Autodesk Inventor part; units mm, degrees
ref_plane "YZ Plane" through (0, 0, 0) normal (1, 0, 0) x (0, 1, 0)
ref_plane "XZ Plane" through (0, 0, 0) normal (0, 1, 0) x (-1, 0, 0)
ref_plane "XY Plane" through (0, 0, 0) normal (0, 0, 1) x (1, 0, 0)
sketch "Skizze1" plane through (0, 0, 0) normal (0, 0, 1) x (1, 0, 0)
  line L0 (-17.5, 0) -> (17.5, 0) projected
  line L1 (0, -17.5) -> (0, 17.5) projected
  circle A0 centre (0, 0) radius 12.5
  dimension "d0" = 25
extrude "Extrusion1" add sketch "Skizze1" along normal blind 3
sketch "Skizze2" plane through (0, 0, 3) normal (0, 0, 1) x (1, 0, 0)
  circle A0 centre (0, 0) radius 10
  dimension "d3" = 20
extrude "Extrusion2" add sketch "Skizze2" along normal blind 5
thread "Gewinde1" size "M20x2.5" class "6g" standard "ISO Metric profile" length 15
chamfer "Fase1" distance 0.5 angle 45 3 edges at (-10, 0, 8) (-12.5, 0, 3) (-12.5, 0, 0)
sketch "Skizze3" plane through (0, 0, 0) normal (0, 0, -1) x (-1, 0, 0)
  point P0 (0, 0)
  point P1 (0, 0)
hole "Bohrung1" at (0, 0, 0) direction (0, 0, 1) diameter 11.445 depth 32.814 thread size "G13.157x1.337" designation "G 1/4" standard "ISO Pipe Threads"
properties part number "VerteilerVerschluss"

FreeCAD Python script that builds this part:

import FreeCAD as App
import Part
import Sketcher
Q = App.Units.Quantity


def edges_at(feature, points):
    """Names of the edges that pass closest to the given points."""
    edges = feature.Shape.Edges
    near = lambda p: min(range(len(edges)), key=lambda i: edges[i].distToShape(Part.Vertex(*p))[0])
    return sorted({f"Edge{near(p) + 1}" for p in points})

doc = App.newDocument("Part")
body = doc.addObject("PartDesign::Body", "Body")

# Sketch on XY plane
sketch1 = body.newObject("Sketcher::SketchObject", "Sketch")
sketch1.AttachmentSupport = (doc.getObject("XY_Plane"), [""])
sketch1.MapMode = "FlatFace"
sketch1.addGeometry(Part.Circle(App.Vector(0, 0, 0), App.Vector(0, 0, 1), 12), False)
sketch1.addConstraint(Sketcher.Constraint("Coincident", 0, 3, -1, 1))
sketch1.addConstraint(Sketcher.Constraint("Diameter", 0, Q("25 mm")))
pad1 = body.newObject("PartDesign::Pad", "Pad")
pad1.Profile = sketch1
pad1.Length = 3

# Sketch on XY plane
sketch2 = body.newObject("Sketcher::SketchObject", "Sketch001")
sketch2.AttachmentSupport = (doc.getObject("XY_Plane"), [""])
sketch2.MapMode = "FlatFace"
sketch2.AttachmentOffset = App.Placement(App.Vector(0, 0, 3), App.Rotation())
sketch2.addGeometry(Part.Circle(App.Vector(0, 0, 0), App.Vector(0, 0, 1), 10), False)
sketch2.addConstraint(Sketcher.Constraint("Coincident", 0, 3, -1, 1))
sketch2.addConstraint(Sketcher.Constraint("Diameter", 0, Q("20 mm")))
pad2 = body.newObject("PartDesign::Pad", "Pad001")
pad2.Profile = sketch2
pad2.Length = 5
doc.recompute()

chamfer = body.newObject("PartDesign::Chamfer", "Chamfer")
chamfer.Base = (pad2, edges_at(pad2, [(-10, 0, 8), (-12.5, 0, 3), (-12.5, 0, 0)]))
chamfer.Size = 0.5

# Sketch on XY plane
sketch3 = body.newObject("Sketcher::SketchObject", "Sketch002")
sketch3.AttachmentSupport = (doc.getObject("XY_Plane"), [""])
sketch3.MapMode = "FlatFace"
sketch3.addGeometry(Part.Circle(App.Vector(0, 0, 0), App.Vector(0, 0, 1), 6), False)
sketch3.addConstraint(Sketcher.Constraint("Coincident", 0, 3, -1, 1))
sketch3.addConstraint(Sketcher.Constraint("Diameter", 0, Q("11.445 mm")))
doc.recompute()
hole = body.newObject("PartDesign::Hole", "Hole")
hole.Profile = sketch3
hole.ThreadType = "None"
hole.Diameter = 11.445
hole.DepthType = "Dimension"
hole.Depth = 32.814
hole.DrillPoint = "Flat"
hole.Reversed = True

doc.recompute()
